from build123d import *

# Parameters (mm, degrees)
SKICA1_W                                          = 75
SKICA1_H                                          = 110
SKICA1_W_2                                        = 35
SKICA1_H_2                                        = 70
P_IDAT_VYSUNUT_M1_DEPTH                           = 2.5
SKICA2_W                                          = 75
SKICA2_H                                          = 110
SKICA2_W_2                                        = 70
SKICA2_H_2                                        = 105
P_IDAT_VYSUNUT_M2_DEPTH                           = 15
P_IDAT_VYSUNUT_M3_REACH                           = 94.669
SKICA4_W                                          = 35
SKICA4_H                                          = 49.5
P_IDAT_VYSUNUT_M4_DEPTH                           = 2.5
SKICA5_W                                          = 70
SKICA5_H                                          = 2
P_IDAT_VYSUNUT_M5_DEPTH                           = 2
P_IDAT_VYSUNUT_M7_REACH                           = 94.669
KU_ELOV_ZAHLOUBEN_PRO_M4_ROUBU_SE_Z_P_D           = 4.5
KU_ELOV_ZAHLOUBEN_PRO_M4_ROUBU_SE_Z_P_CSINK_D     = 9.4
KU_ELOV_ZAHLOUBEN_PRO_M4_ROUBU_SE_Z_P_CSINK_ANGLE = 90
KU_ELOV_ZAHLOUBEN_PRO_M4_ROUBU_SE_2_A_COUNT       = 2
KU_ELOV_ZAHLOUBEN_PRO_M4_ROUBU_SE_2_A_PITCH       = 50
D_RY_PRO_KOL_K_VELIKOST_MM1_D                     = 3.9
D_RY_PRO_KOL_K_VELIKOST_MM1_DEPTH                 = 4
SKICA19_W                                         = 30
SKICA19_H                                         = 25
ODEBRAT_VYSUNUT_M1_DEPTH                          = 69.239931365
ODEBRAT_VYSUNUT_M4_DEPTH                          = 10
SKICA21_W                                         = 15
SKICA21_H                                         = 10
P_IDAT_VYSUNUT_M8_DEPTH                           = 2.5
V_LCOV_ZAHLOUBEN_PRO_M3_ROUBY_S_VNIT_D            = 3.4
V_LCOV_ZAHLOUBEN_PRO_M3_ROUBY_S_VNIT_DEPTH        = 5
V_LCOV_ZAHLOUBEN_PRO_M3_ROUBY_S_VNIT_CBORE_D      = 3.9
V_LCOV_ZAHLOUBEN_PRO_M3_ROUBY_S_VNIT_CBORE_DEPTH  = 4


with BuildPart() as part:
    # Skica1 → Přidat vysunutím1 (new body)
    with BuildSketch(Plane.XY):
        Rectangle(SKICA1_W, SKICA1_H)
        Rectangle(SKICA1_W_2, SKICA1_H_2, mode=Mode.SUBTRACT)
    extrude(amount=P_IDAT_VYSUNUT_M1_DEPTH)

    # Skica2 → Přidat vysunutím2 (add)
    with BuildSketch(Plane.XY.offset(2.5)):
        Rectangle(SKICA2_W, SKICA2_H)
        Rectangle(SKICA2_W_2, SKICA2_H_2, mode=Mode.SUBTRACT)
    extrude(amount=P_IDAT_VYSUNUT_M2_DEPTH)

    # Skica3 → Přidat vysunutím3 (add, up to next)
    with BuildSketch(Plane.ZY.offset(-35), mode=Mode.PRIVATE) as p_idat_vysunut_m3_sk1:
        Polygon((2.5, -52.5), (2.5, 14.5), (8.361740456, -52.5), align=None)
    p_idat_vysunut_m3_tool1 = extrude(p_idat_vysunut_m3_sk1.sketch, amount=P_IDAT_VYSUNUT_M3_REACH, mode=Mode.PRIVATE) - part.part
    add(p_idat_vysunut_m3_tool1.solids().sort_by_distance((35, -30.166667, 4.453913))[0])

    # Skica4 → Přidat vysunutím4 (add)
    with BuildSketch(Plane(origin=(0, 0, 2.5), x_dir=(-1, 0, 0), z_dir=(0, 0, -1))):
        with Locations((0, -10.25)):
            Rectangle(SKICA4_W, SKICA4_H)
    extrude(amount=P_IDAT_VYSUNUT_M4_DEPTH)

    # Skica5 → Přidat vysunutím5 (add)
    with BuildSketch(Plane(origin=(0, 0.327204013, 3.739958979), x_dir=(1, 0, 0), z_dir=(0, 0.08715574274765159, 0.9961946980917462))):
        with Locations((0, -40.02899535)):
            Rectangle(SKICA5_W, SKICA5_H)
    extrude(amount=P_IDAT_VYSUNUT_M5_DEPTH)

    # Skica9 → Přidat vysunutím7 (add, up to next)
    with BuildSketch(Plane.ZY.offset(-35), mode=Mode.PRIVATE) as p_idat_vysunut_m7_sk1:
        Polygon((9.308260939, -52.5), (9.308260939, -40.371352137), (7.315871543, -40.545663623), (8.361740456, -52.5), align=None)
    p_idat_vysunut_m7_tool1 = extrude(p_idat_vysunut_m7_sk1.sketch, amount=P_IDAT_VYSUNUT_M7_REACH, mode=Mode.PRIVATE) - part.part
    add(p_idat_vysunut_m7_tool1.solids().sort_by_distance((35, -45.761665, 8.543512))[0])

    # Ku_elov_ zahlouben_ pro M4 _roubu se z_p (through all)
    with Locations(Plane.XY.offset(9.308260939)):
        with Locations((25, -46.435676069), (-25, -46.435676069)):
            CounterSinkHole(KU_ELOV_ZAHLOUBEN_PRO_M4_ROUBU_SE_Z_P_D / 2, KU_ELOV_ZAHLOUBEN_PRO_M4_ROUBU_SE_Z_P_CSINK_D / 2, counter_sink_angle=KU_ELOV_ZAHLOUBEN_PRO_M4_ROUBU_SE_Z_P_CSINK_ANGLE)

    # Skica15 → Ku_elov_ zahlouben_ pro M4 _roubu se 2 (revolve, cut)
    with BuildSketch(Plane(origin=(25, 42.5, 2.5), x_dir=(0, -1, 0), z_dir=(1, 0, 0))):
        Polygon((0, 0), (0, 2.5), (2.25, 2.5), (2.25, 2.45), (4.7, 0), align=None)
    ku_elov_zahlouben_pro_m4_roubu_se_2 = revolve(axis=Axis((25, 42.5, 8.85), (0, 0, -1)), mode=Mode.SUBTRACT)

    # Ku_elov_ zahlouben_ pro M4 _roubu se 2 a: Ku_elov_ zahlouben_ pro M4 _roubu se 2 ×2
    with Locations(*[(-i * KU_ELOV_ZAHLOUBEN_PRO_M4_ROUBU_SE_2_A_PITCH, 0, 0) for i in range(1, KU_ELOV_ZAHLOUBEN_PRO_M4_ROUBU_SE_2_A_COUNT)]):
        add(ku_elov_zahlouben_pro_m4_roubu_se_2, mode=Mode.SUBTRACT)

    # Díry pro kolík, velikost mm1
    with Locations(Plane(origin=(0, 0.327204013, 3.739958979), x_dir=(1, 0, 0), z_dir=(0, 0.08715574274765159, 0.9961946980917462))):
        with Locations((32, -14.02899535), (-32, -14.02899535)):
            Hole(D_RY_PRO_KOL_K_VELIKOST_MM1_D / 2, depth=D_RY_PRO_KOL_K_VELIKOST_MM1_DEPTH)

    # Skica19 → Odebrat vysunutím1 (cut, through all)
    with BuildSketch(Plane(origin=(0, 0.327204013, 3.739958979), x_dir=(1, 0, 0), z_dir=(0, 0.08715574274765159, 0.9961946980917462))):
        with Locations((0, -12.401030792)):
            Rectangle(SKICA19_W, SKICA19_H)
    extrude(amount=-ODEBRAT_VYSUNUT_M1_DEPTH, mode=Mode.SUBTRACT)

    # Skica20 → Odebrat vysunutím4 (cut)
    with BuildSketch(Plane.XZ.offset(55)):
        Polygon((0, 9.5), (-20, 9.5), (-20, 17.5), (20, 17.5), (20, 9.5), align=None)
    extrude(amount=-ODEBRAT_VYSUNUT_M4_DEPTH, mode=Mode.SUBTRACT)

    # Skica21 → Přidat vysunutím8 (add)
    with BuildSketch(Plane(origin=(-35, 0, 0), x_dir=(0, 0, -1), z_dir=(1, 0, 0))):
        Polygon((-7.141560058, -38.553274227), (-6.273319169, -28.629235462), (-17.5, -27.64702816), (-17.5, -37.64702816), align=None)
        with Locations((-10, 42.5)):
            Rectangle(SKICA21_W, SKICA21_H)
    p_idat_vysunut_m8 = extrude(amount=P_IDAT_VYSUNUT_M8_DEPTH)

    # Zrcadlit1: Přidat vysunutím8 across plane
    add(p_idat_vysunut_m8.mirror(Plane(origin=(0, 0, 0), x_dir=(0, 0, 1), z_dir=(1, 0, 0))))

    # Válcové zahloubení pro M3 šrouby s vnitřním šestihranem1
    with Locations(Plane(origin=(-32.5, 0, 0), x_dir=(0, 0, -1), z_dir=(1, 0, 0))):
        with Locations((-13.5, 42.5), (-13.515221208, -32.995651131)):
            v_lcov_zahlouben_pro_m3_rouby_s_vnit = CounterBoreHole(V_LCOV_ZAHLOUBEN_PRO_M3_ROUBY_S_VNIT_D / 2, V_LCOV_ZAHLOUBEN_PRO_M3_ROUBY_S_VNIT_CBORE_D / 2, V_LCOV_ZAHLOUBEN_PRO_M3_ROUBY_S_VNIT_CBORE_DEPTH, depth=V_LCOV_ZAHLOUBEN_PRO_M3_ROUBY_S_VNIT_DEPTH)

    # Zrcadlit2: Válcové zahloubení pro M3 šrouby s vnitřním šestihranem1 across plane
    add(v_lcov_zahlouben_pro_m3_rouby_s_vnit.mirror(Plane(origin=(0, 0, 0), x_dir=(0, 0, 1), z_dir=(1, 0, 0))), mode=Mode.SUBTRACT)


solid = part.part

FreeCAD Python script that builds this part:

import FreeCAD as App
import Part
import Sketcher

V = App.Vector
Q = App.Units.Quantity


def add_polygon(sketch, points):
    """Adds a closed chain of lines whose ends are joined by coincident constraints."""
    first, n = sketch.GeometryCount, len(points)
    for a, b in zip(points, points[1:] + points[:1]):
        sketch.addGeometry(Part.LineSegment(App.Vector(*a, 0), App.Vector(*b, 0)), False)
    for i in range(n):
        sketch.addConstraint(Sketcher.Constraint("Coincident", first + i, 2, first + (i + 1) % n, 1))

doc = App.newDocument("Part")
body = doc.addObject("PartDesign::Body", "Body")

# Sketch on XY plane
sketch1 = doc.addObject("Sketcher::SketchObject", "Sketch")
body.addObject(sketch1)
sketch1.AttachmentSupport = (doc.XY_Plane, [""])
sketch1.MapMode = "FlatFace"
add_polygon(sketch1, [(-38, 55), (-38, -55), (38, -55), (38, 55)])  # lines 0-3
add_polygon(sketch1, [(18, -35), (-18, -35), (-18, 35), (18, 35)])  # lines 4-7
sketch1.addConstraint(Sketcher.Constraint("Vertical", 0))
sketch1.addConstraint(Sketcher.Constraint("Horizontal", 1))
sketch1.addConstraint(Sketcher.Constraint("Vertical", 2))
sketch1.addConstraint(Sketcher.Constraint("Horizontal", 3))
sketch1.addConstraint(Sketcher.Constraint("Horizontal", 4))
sketch1.addConstraint(Sketcher.Constraint("Vertical", 5))
sketch1.addConstraint(Sketcher.Constraint("Horizontal", 6))
sketch1.addConstraint(Sketcher.Constraint("Vertical", 7))
sketch1.addConstraint(Sketcher.Constraint("Symmetric", 0, 2, 2, 2, -1, 1))
sketch1.addConstraint(Sketcher.Constraint("Symmetric", 4, 2, 6, 2, -1, 1))
sketch1.addConstraint(Sketcher.Constraint("DistanceX", 1, 1, 1, 2, Q("75 mm")))
sketch1.addConstraint(Sketcher.Constraint("DistanceX", 4, 2, 4, 1, Q("35 mm")))
sketch1.addConstraint(Sketcher.Constraint("DistanceY", 0, 2, 0, 1, Q("110 mm")))
sketch1.addConstraint(Sketcher.Constraint("DistanceY", 5, 1, 5, 2, Q("70 mm")))
pad1 = doc.addObject("PartDesign::Pad", "Pad")
body.addObject(pad1)
pad1.Profile = sketch1
pad1.Length = 2.5

# Sketch on XY plane
sketch2 = doc.addObject("Sketcher::SketchObject", "Sketch001")
body.addObject(sketch2)
sketch2.AttachmentSupport = (doc.XY_Plane, [""])
sketch2.MapMode = "FlatFace"
sketch2.AttachmentOffset = App.Placement(V(0, 0, 2.5), App.Rotation())
add_polygon(sketch2, [(-38, 55), (-38, -55), (38, -55), (38, 55)])  # lines 0-3
add_polygon(sketch2, [(35, -52), (-35, -52), (-35, 52), (35, 52)])  # lines 4-7
sketch2.addConstraint(Sketcher.Constraint("Vertical", 0))
sketch2.addConstraint(Sketcher.Constraint("Horizontal", 1))
sketch2.addConstraint(Sketcher.Constraint("Vertical", 2))
sketch2.addConstraint(Sketcher.Constraint("Horizontal", 3))
sketch2.addConstraint(Sketcher.Constraint("Horizontal", 4))
sketch2.addConstraint(Sketcher.Constraint("Vertical", 5))
sketch2.addConstraint(Sketcher.Constraint("Horizontal", 6))
sketch2.addConstraint(Sketcher.Constraint("Vertical", 7))
sketch2.addConstraint(Sketcher.Constraint("Symmetric", 0, 2, 2, 2, -1, 1))
sketch2.addConstraint(Sketcher.Constraint("Symmetric", 4, 2, 6, 2, -1, 1))
sketch2.addConstraint(Sketcher.Constraint("DistanceX", 1, 1, 1, 2, Q("75 mm")))
sketch2.addConstraint(Sketcher.Constraint("DistanceX", 4, 2, 4, 1, Q("70 mm")))
sketch2.addConstraint(Sketcher.Constraint("DistanceY", 0, 2, 0, 1, Q("110 mm")))
sketch2.addConstraint(Sketcher.Constraint("DistanceY", 5, 1, 5, 2, Q("105 mm")))
pad2 = doc.addObject("PartDesign::Pad", "Pad001")
body.addObject(pad2)
pad2.Profile = sketch2
pad2.Length = 15

# Sketch on YZ plane
sketch3 = doc.addObject("Sketcher::SketchObject", "Sketch002")
body.addObject(sketch3)
sketch3.AttachmentSupport = (doc.YZ_Plane, [""])
sketch3.MapMode = "FlatFace"
sketch3.AttachmentOffset = App.Placement(V(0, 0, 35), App.Rotation())
add_polygon(sketch3, [(14, 2), (-52, 2), (-52, 8)])  # lines 0-2
sketch3.addConstraint(Sketcher.Constraint("Horizontal", 0))
sketch3.addConstraint(Sketcher.Constraint("Vertical", 1))
sketch3.addConstraint(Sketcher.Constraint("DistanceX", 0, 2, 0, 1, Q("67 mm")))
sketch3.addConstraint(Sketcher.Constraint("Angle", 2, Q("-5 deg")))
sketch3.addConstraint(Sketcher.Constraint("DistanceX", 0, 2, -1, 1, Q("52.5 mm")))
sketch3.addConstraint(Sketcher.Constraint("DistanceY", -1, 1, 0, 2, Q("2.5 mm")))
pad3 = doc.addObject("PartDesign::Pad", "Pad002")
body.addObject(pad3)
pad3.Profile = sketch3
pad3.Type = "UpToFirst"
pad3.Reversed = True

# Sketch on XY plane
sketch4 = doc.addObject("Sketcher::SketchObject", "Sketch003")
body.addObject(sketch4)
sketch4.AttachmentSupport = (doc.XY_Plane, [""])
sketch4.MapMode = "FlatFace"
sketch4.AttachmentOffset = App.Placement(V(0, 0, 2.5), App.Rotation())
add_polygon(sketch4, [(18, 14), (18, -35), (-18, -35), (-18, 14)])  # lines 0-3
sketch4.addConstraint(Sketcher.Constraint("Vertical", 0))
sketch4.addConstraint(Sketcher.Constraint("Horizontal", 1))
sketch4.addConstraint(Sketcher.Constraint("Vertical", 2))
sketch4.addConstraint(Sketcher.Constraint("Horizontal", 3))
sketch4.addConstraint(Sketcher.Constraint("DistanceX", 1, 2, 1, 1, Q("35 mm")))
sketch4.addConstraint(Sketcher.Constraint("DistanceY", 0, 2, 0, 1, Q("49.5 mm")))
sketch4.addConstraint(Sketcher.Constraint("DistanceY", 0, 2, -1, 1, Q("35 mm")))
sketch4.addConstraint(Sketcher.Constraint("DistanceX", -1, 1, 0, 2, Q("17.5 mm")))
pad4 = doc.addObject("PartDesign::Pad", "Pad003")
body.addObject(pad4)
pad4.Profile = sketch4
pad4.Length = 2.5
pad4.Reversed = True

# Sketch on an angled plane
sketch5 = doc.addObject("Sketcher::SketchObject", "Sketch004")
body.addObject(sketch5)
sketch5.Placement = App.Placement(V(0, 0.327204, 3.739959), App.Rotation(V(1, 0, 0), V(0, 0.996194698, -0.087155743), V(0, 0.087155743, 0.996194698), "ZXY"))
add_polygon(sketch5, [(-35, -39), (-35, -41), (35, -41), (35, -39)])  # lines 0-3
sketch5.addConstraint(Sketcher.Constraint("Vertical", 0))
sketch5.addConstraint(Sketcher.Constraint("Horizontal", 1))
sketch5.addConstraint(Sketcher.Constraint("Vertical", 2))
sketch5.addConstraint(Sketcher.Constraint("Horizontal", 3))
sketch5.addConstraint(Sketcher.Constraint("DistanceX", 1, 1, 1, 2, Q("70 mm")))
sketch5.addConstraint(Sketcher.Constraint("DistanceY", 0, 2, 0, 1, Q("2 mm")))
sketch5.addConstraint(Sketcher.Constraint("DistanceX", 0, 2, -1, 1, Q("35 mm")))
sketch5.addConstraint(Sketcher.Constraint("DistanceY", 0, 2, -1, 1, Q("41.028995 mm")))
pad5 = doc.addObject("PartDesign::Pad", "Pad004")
body.addObject(pad5)
pad5.Profile = sketch5
pad5.Length = 2

# Sketch on YZ plane
sketch6 = doc.addObject("Sketcher::SketchObject", "Sketch005")
body.addObject(sketch6)
sketch6.AttachmentSupport = (doc.YZ_Plane, [""])
sketch6.MapMode = "FlatFace"
sketch6.AttachmentOffset = App.Placement(V(0, 0, 35), App.Rotation())
add_polygon(sketch6, [(-52.5, 9.3), (-40.4, 9.3), (-40.5, 7.3), (-52.5, 8.4)])  # lines 0-3
sketch6.addConstraint(Sketcher.Constraint("Horizontal", 0))
sketch6.addConstraint(Sketcher.Constraint("Vertical", 3))
sketch6.addConstraint(Sketcher.Constraint("Perpendicular", 1, 2))
sketch6.addConstraint(Sketcher.Constraint("Angle", 1, Q("-95 deg")))
sketch6.addConstraint(Sketcher.Constraint("Distance", 1, Q("2 mm")))
sketch6.addConstraint(Sketcher.Constraint("Distance", 2, Q("12 mm")))
sketch6.addConstraint(Sketcher.Constraint("DistanceX", 2, 2, -1, 1, Q("52.5 mm")))
sketch6.addConstraint(Sketcher.Constraint("DistanceY", -1, 1, 0, 2, Q("9.308261 mm")))
pad6 = doc.addObject("PartDesign::Pad", "Pad005")
body.addObject(pad6)
pad6.Profile = sketch6
pad6.Type = "UpToFirst"
pad6.Reversed = True

# Sketch on XY plane
sketch7 = doc.addObject("Sketcher::SketchObject", "Sketch006")
body.addObject(sketch7)
sketch7.AttachmentSupport = (doc.XY_Plane, [""])
sketch7.MapMode = "FlatFace"
sketch7.AttachmentOffset = App.Placement(V(0, 0, 9.308261), App.Rotation())
sketch7.addGeometry(Part.Circle(V(25, -46.4, 0), V(0, 0, 1), 2.2), False)
sketch7.addGeometry(Part.Circle(V(-25, -46.4, 0), V(0, 0, 1), 2.2), False)
sketch7.addConstraint(Sketcher.Constraint("Equal", 0, 1))
sketch7.addConstraint(Sketcher.Constraint("Symmetric", 0, 3, 1, 3, -2))
sketch7.addConstraint(Sketcher.Constraint("Diameter", 0, Q("4.5 mm")))
sketch7.addConstraint(Sketcher.Constraint("DistanceX", -1, 1, 0, 3, Q("25 mm")))
sketch7.addConstraint(Sketcher.Constraint("DistanceY", 0, 3, -1, 1, Q("46.435676 mm")))
doc.recompute()
hole = doc.addObject("PartDesign::Hole", "Hole")
body.addObject(hole)
hole.Profile = sketch7
hole.ThreadType = "None"
hole.Diameter = 4.5
hole.DepthType = "ThroughAll"
hole.HoleCutType = "Countersink"
hole.HoleCutDiameter = 9.4
hole.HoleCutCountersinkAngle = 90

# Sketch on YZ plane
sketch8 = doc.addObject("Sketcher::SketchObject", "Sketch007")
body.addObject(sketch8)
sketch8.AttachmentSupport = (doc.YZ_Plane, [""])
sketch8.MapMode = "FlatFace"
sketch8.AttachmentOffset = App.Placement(V(0, 0, 25), App.Rotation())
add_polygon(sketch8, [(42.5, 0), (42.5, 2.5), (37.8, 2.5), (40.25, 0.05), (40.25, 0)])  # lines 0-4
sketch8.addGeometry(Part.LineSegment(V(42.5, 2.5, 0), V(42.5, 0, 0)), True)  # axis
sketch8.addConstraint(Sketcher.Constraint("Vertical", 0))
sketch8.addConstraint(Sketcher.Constraint("Horizontal", 1))
sketch8.addConstraint(Sketcher.Constraint("Vertical", 3))
sketch8.addConstraint(Sketcher.Constraint("Horizontal", 4))
sketch8.addConstraint(Sketcher.Constraint("Vertical", 5))
sketch8.addConstraint(Sketcher.Constraint("Coincident", 5, 1, 0, 2))
sketch8.addConstraint(Sketcher.Constraint("PointOnObject", 3, 2, -1))
sketch8.addConstraint(Sketcher.Constraint("PointOnObject", 5, 2, -1))
sketch8.addConstraint(Sketcher.Constraint("Angle", 2, Q("-45 deg")))
sketch8.addConstraint(Sketcher.Constraint("DistanceX", 1, 2, 1, 1, Q("4.7 mm")))
sketch8.addConstraint(Sketcher.Constraint("DistanceY", 0, 1, 0, 2, Q("2.5 mm")))
sketch8.addConstraint(Sketcher.Constraint("DistanceX", 4, 1, 4, 2, Q("2.25 mm")))
sketch8.addConstraint(Sketcher.Constraint("DistanceX", -1, 1, 0, 2, Q("42.5 mm")))
groove = doc.addObject("PartDesign::Groove", "Groove")
body.addObject(groove)
groove.Profile = sketch8
groove.ReferenceAxis = (sketch8, ["Axis0"])
groove.Angle = 360
doc.recompute()

linearpattern = doc.addObject("PartDesign::LinearPattern", "LinearPattern")
body.addObject(linearpattern)
linearpattern.Originals = [groove]
linearpattern.Direction = (doc.X_Axis, [""])
linearpattern.Mode = "offset"
linearpattern.Offset = 50
linearpattern.Occurrences = 2
linearpattern.Reversed = True
body.Tip = linearpattern

# Sketch on an angled plane
sketch9 = doc.addObject("Sketcher::SketchObject", "Sketch008")
body.addObject(sketch9)
sketch9.Placement = App.Placement(V(0, 0.327204, 3.739959), App.Rotation(V(1, 0, 0), V(0, 0.996194698, -0.087155743), V(0, 0.087155743, 0.996194698), "ZXY"))
sketch9.addGeometry(Part.Circle(V(32, -14, 0), V(0, 0, 1), 1.9), False)
sketch9.addGeometry(Part.Circle(V(-32, -14, 0), V(0, 0, 1), 1.9), False)
sketch9.addConstraint(Sketcher.Constraint("Equal", 0, 1))
sketch9.addConstraint(Sketcher.Constraint("Symmetric", 0, 3, 1, 3, -2))
sketch9.addConstraint(Sketcher.Constraint("Diameter", 0, Q("3.9 mm")))
sketch9.addConstraint(Sketcher.Constraint("DistanceX", -1, 1, 0, 3, Q("32 mm")))
sketch9.addConstraint(Sketcher.Constraint("DistanceY", 0, 3, -1, 1, Q("14.028995 mm")))
doc.recompute()
hole2 = doc.addObject("PartDesign::Hole", "Hole001")
body.addObject(hole2)
hole2.Profile = sketch9
hole2.ThreadType = "None"
hole2.Diameter = 3.9
hole2.DepthType = "Dimension"
hole2.Depth = 4
hole2.DrillPoint = "Flat"

# Sketch on an angled plane
sketch10 = doc.addObject("Sketcher::SketchObject", "Sketch009")
body.addObject(sketch10)
sketch10.Placement = App.Placement(V(0, 0.327204, 3.739959), App.Rotation(V(1, 0, 0), V(0, 0.996194698, -0.087155743), V(0, 0.087155743, 0.996194698), "ZXY"))
add_polygon(sketch10, [(-15, 0), (-15, -25), (15, -25), (15, 0)])  # lines 0-3
sketch10.addConstraint(Sketcher.Constraint("Vertical", 0))
sketch10.addConstraint(Sketcher.Constraint("Horizontal", 1))
sketch10.addConstraint(Sketcher.Constraint("Vertical", 2))
sketch10.addConstraint(Sketcher.Constraint("Horizontal", 3))
sketch10.addConstraint(Sketcher.Constraint("DistanceX", 1, 1, 1, 2, Q("30 mm")))
sketch10.addConstraint(Sketcher.Constraint("DistanceY", 0, 2, 0, 1, Q("25 mm")))
sketch10.addConstraint(Sketcher.Constraint("DistanceX", 0, 2, -1, 1, Q("15 mm")))
sketch10.addConstraint(Sketcher.Constraint("DistanceY", 0, 2, -1, 1, Q("24.901031 mm")))
pocket1 = doc.addObject("PartDesign::Pocket", "Pocket")
body.addObject(pocket1)
pocket1.Profile = sketch10
pocket1.Type = "ThroughAll"

# Sketch on XZ plane
sketch11 = doc.addObject("Sketcher::SketchObject", "Sketch010")
body.addObject(sketch11)
sketch11.AttachmentSupport = (doc.XZ_Plane, [""])
sketch11.MapMode = "FlatFace"
sketch11.AttachmentOffset = App.Placement(V(0, 0, 55), App.Rotation())
add_polygon(sketch11, [(-20, 10), (20, 10), (20, 18), (-20, 18)])  # lines 0-3
sketch11.addConstraint(Sketcher.Constraint("Horizontal", 0))
sketch11.addConstraint(Sketcher.Constraint("Vertical", 1))
sketch11.addConstraint(Sketcher.Constraint("Horizontal", 2))
sketch11.addConstraint(Sketcher.Constraint("Vertical", 3))
sketch11.addConstraint(Sketcher.Constraint("DistanceX", 0, 1, 0, 2, Q("40 mm")))
sketch11.addConstraint(Sketcher.Constraint("DistanceY", 1, 1, 1, 2, Q("8 mm")))
sketch11.addConstraint(Sketcher.Constraint("DistanceX", -1, 1, 0, 2, Q("20 mm")))
sketch11.addConstraint(Sketcher.Constraint("DistanceY", -1, 1, 0, 2, Q("9.5 mm")))
pocket2 = doc.addObject("PartDesign::Pocket", "Pocket001")
body.addObject(pocket2)
pocket2.Profile = sketch11
pocket2.Length = 10

# Sketch on YZ plane
sketch12 = doc.addObject("Sketcher::SketchObject", "Sketch011")
body.addObject(sketch12)
sketch12.AttachmentSupport = (doc.YZ_Plane, [""])
sketch12.MapMode = "FlatFace"
sketch12.AttachmentOffset = App.Placement(V(0, 0, -35), App.Rotation())
add_polygon(sketch12, [(-39, 7), (-29, 6), (-28, 18), (-38, 18)])  # lines 0-3
add_polygon(sketch12, [(48, 18), (38, 18), (38, 2), (48, 2)])  # lines 4-7
sketch12.addConstraint(Sketcher.Constraint("Horizontal", 2))
sketch12.addConstraint(Sketcher.Constraint("Horizontal", 4))
sketch12.addConstraint(Sketcher.Constraint("Vertical", 5))
sketch12.addConstraint(Sketcher.Constraint("Horizontal", 6))
sketch12.addConstraint(Sketcher.Constraint("Vertical", 7))
sketch12.addConstraint(Sketcher.Constraint("Perpendicular", 0, 1))
sketch12.addConstraint(Sketcher.Constraint("Parallel", 1, 3))
sketch12.addConstraint(Sketcher.Constraint("Horizontal", 2, 2, 4, 2))
sketch12.addConstraint(Sketcher.Constraint("Equal", 2, 4))
sketch12.addConstraint(Sketcher.Constraint("DistanceX", 2, 2, 2, 1, Q("10 mm")))
sketch12.addConstraint(Sketcher.Constraint("DistanceY", 5, 2, 5, 1, Q("15 mm")))
sketch12.addConstraint(Sketcher.Constraint("Angle", 0, Q("-5 deg")))
sketch12.addConstraint(Sketcher.Constraint("DistanceY", -1, 1, 1, 2, Q("17.5 mm")))
sketch12.addConstraint(Sketcher.Constraint("DistanceX", -1, 1, 4, 2, Q("37.5 mm")))
sketch12.addConstraint(Sketcher.Constraint("DistanceY", -1, 1, 0, 2, Q("6.273319 mm")))
sketch12.addConstraint(Sketcher.Constraint("DistanceX", 1, 2, -1, 1, Q("27.647028 mm")))
pad7 = doc.addObject("PartDesign::Pad", "Pad006")
body.addObject(pad7)
pad7.Profile = sketch12
pad7.Length = 2.5
doc.recompute()

mirrored = doc.addObject("PartDesign::Mirrored", "Mirrored")
body.addObject(mirrored)
mirrored.Originals = [pad7]
mirrored.MirrorPlane = (doc.YZ_Plane, [""])
body.Tip = mirrored

# Sketch on YZ plane
sketch13 = doc.addObject("Sketcher::SketchObject", "Sketch012")
body.addObject(sketch13)
sketch13.AttachmentSupport = (doc.YZ_Plane, [""])
sketch13.MapMode = "FlatFace"
sketch13.AttachmentOffset = App.Placement(V(0, 0, -32.5), App.Rotation())
sketch13.addGeometry(Part.Circle(V(42.5, 13.5, 0), V(0, 0, 1), 1.7), False)
sketch13.addGeometry(Part.Circle(V(-33, 13.5, 0), V(0, 0, 1), 1.7), False)
sketch13.addConstraint(Sketcher.Constraint("Equal", 0, 1))
sketch13.addConstraint(Sketcher.Constraint("Diameter", 0, Q("3.4 mm")))
sketch13.addConstraint(Sketcher.Constraint("DistanceX", -1, 1, 0, 3, Q("42.5 mm")))
sketch13.addConstraint(Sketcher.Constraint("DistanceY", -1, 1, 0, 3, Q("13.5 mm")))
sketch13.addConstraint(Sketcher.Constraint("DistanceX", 1, 3, -1, 1, Q("32.995651 mm")))
sketch13.addConstraint(Sketcher.Constraint("DistanceY", -1, 1, 1, 3, Q("13.515221 mm")))
doc.recompute()
hole3 = doc.addObject("PartDesign::Hole", "Hole002")
body.addObject(hole3)
hole3.Profile = sketch13
hole3.ThreadType = "None"
hole3.Diameter = 3.4
hole3.DepthType = "Dimension"
hole3.Depth = 5
hole3.DrillPoint = "Flat"
hole3.HoleCutType = "Counterbore"
hole3.HoleCutDiameter = 3.9
hole3.HoleCutDepth = 4
doc.recompute()

mirrored2 = doc.addObject("PartDesign::Mirrored", "Mirrored001")
body.addObject(mirrored2)
mirrored2.Originals = [hole3]
mirrored2.MirrorPlane = (doc.YZ_Plane, [""])
body.Tip = mirrored2

doc.recompute()
